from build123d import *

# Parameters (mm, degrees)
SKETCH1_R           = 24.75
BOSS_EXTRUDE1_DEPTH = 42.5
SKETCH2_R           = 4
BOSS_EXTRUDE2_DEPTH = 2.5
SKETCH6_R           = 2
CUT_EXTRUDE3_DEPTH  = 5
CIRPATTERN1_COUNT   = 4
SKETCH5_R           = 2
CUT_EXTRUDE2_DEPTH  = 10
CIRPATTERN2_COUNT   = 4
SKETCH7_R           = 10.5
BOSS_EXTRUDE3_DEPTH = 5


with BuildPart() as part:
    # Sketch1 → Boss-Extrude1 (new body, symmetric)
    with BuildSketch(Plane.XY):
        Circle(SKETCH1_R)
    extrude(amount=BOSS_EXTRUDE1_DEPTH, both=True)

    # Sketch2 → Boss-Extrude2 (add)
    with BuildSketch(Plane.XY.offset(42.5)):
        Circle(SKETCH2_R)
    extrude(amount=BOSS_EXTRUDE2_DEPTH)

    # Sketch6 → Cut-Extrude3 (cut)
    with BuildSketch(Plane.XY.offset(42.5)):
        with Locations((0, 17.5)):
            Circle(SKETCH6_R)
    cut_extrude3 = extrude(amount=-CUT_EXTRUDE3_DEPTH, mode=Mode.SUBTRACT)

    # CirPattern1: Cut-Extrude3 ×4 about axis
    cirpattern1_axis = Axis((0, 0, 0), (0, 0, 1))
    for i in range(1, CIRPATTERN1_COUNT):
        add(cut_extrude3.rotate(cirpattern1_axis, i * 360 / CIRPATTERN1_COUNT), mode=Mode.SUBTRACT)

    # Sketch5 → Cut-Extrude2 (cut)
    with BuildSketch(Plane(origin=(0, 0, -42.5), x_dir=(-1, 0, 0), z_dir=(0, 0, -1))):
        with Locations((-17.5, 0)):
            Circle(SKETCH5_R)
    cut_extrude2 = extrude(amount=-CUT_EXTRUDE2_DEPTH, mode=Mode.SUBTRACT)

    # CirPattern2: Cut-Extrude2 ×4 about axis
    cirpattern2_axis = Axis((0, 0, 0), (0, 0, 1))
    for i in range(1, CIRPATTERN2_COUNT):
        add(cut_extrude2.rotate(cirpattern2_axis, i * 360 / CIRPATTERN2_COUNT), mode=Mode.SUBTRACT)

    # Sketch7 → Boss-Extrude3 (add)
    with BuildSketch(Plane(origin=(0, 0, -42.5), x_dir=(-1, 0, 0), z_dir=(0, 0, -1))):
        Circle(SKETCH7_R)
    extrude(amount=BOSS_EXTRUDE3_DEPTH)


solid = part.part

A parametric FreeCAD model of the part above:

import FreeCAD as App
import Part
import Sketcher

doc = App.newDocument("Part")
body = doc.addObject("PartDesign::Body", "Body")

# Sketch on XY plane
sketch1 = body.newObject("Sketcher::SketchObject", "Sketch")
sketch1.AttachmentSupport = (doc.getObject("XY_Plane"), [""])
sketch1.MapMode = "FlatFace"
sketch1.addGeometry(Part.Circle(App.Vector(0, 0, 0), App.Vector(0, 0, 1), 25), False)
sketch1.addConstraint(Sketcher.Constraint("Coincident", 0, 3, -1, 1))
sketch1.addConstraint(Sketcher.Constraint("Diameter", 0, 49.5))
pad1 = body.newObject("PartDesign::Pad", "Pad")
pad1.Profile = sketch1
pad1.Length = 85
pad1.Midplane = True

# Sketch on XY plane
sketch2 = body.newObject("Sketcher::SketchObject", "Sketch001")
sketch2.AttachmentSupport = (doc.getObject("XY_Plane"), [""])
sketch2.MapMode = "FlatFace"
sketch2.AttachmentOffset = App.Placement(App.Vector(0, 0, 42.5), App.Rotation())
sketch2.addGeometry(Part.Circle(App.Vector(0, 0, 0), App.Vector(0, 0, 1), 4), False)
sketch2.addConstraint(Sketcher.Constraint("Coincident", 0, 3, -1, 1))
sketch2.addConstraint(Sketcher.Constraint("Diameter", 0, 8.0))
pad2 = body.newObject("PartDesign::Pad", "Pad001")
pad2.Profile = sketch2
pad2.Length = 2.5

# Sketch on XY plane
sketch3 = body.newObject("Sketcher::SketchObject", "Sketch002")
sketch3.AttachmentSupport = (doc.getObject("XY_Plane"), [""])
sketch3.MapMode = "FlatFace"
sketch3.AttachmentOffset = App.Placement(App.Vector(0, 0, 42.5), App.Rotation())
sketch3.addGeometry(Part.Circle(App.Vector(0, 17.5, 0), App.Vector(0, 0, 1), 2), False)
sketch3.addConstraint(Sketcher.Constraint("PointOnObject", 0, 3, -2))
sketch3.addConstraint(Sketcher.Constraint("Diameter", 0, 4.0))
sketch3.addConstraint(Sketcher.Constraint("DistanceY", -1, 1, 0, 3, 17.5))
pocket1 = body.newObject("PartDesign::Pocket", "Pocket")
pocket1.Profile = sketch3
pocket1.Length = 5
doc.recompute()

polarpattern = body.newObject("PartDesign::PolarPattern", "PolarPattern")
polarpattern.Originals = [pocket1]
polarpattern.Axis = (doc.getObject("Z_Axis"), [""])
polarpattern.Angle = 360
polarpattern.Occurrences = 4
body.Tip = polarpattern

# Sketch on XY plane
sketch4 = body.newObject("Sketcher::SketchObject", "Sketch003")
sketch4.AttachmentSupport = (doc.getObject("XY_Plane"), [""])
sketch4.MapMode = "FlatFace"
sketch4.AttachmentOffset = App.Placement(App.Vector(0, 0, -42.5), App.Rotation())
sketch4.addGeometry(Part.Circle(App.Vector(17.5, 0, 0), App.Vector(0, 0, 1), 2), False)
sketch4.addConstraint(Sketcher.Constraint("PointOnObject", 0, 3, -1))
sketch4.addConstraint(Sketcher.Constraint("Diameter", 0, 4.0))
sketch4.addConstraint(Sketcher.Constraint("DistanceX", -1, 1, 0, 3, 17.5))
pocket2 = body.newObject("PartDesign::Pocket", "Pocket001")
pocket2.Profile = sketch4
pocket2.Length = 10
pocket2.Reversed = True
doc.recompute()

polarpattern2 = body.newObject("PartDesign::PolarPattern", "PolarPattern001")
polarpattern2.Originals = [pocket2]
polarpattern2.Axis = (doc.getObject("Z_Axis"), [""])
polarpattern2.Angle = 360
polarpattern2.Occurrences = 4
body.Tip = polarpattern2

# Sketch on XY plane
sketch5 = body.newObject("Sketcher::SketchObject", "Sketch004")
sketch5.AttachmentSupport = (doc.getObject("XY_Plane"), [""])
sketch5.MapMode = "FlatFace"
sketch5.AttachmentOffset = App.Placement(App.Vector(0, 0, -42.5), App.Rotation())
sketch5.addGeometry(Part.Circle(App.Vector(0, 0, 0), App.Vector(0, 0, 1), 10), False)
sketch5.addConstraint(Sketcher.Constraint("Coincident", 0, 3, -1, 1))
sketch5.addConstraint(Sketcher.Constraint("Diameter", 0, 21.0))
pad3 = body.newObject("PartDesign::Pad", "Pad002")
pad3.Profile = sketch5
pad3.Length = 5
pad3.Reversed = True

doc.recompute()
